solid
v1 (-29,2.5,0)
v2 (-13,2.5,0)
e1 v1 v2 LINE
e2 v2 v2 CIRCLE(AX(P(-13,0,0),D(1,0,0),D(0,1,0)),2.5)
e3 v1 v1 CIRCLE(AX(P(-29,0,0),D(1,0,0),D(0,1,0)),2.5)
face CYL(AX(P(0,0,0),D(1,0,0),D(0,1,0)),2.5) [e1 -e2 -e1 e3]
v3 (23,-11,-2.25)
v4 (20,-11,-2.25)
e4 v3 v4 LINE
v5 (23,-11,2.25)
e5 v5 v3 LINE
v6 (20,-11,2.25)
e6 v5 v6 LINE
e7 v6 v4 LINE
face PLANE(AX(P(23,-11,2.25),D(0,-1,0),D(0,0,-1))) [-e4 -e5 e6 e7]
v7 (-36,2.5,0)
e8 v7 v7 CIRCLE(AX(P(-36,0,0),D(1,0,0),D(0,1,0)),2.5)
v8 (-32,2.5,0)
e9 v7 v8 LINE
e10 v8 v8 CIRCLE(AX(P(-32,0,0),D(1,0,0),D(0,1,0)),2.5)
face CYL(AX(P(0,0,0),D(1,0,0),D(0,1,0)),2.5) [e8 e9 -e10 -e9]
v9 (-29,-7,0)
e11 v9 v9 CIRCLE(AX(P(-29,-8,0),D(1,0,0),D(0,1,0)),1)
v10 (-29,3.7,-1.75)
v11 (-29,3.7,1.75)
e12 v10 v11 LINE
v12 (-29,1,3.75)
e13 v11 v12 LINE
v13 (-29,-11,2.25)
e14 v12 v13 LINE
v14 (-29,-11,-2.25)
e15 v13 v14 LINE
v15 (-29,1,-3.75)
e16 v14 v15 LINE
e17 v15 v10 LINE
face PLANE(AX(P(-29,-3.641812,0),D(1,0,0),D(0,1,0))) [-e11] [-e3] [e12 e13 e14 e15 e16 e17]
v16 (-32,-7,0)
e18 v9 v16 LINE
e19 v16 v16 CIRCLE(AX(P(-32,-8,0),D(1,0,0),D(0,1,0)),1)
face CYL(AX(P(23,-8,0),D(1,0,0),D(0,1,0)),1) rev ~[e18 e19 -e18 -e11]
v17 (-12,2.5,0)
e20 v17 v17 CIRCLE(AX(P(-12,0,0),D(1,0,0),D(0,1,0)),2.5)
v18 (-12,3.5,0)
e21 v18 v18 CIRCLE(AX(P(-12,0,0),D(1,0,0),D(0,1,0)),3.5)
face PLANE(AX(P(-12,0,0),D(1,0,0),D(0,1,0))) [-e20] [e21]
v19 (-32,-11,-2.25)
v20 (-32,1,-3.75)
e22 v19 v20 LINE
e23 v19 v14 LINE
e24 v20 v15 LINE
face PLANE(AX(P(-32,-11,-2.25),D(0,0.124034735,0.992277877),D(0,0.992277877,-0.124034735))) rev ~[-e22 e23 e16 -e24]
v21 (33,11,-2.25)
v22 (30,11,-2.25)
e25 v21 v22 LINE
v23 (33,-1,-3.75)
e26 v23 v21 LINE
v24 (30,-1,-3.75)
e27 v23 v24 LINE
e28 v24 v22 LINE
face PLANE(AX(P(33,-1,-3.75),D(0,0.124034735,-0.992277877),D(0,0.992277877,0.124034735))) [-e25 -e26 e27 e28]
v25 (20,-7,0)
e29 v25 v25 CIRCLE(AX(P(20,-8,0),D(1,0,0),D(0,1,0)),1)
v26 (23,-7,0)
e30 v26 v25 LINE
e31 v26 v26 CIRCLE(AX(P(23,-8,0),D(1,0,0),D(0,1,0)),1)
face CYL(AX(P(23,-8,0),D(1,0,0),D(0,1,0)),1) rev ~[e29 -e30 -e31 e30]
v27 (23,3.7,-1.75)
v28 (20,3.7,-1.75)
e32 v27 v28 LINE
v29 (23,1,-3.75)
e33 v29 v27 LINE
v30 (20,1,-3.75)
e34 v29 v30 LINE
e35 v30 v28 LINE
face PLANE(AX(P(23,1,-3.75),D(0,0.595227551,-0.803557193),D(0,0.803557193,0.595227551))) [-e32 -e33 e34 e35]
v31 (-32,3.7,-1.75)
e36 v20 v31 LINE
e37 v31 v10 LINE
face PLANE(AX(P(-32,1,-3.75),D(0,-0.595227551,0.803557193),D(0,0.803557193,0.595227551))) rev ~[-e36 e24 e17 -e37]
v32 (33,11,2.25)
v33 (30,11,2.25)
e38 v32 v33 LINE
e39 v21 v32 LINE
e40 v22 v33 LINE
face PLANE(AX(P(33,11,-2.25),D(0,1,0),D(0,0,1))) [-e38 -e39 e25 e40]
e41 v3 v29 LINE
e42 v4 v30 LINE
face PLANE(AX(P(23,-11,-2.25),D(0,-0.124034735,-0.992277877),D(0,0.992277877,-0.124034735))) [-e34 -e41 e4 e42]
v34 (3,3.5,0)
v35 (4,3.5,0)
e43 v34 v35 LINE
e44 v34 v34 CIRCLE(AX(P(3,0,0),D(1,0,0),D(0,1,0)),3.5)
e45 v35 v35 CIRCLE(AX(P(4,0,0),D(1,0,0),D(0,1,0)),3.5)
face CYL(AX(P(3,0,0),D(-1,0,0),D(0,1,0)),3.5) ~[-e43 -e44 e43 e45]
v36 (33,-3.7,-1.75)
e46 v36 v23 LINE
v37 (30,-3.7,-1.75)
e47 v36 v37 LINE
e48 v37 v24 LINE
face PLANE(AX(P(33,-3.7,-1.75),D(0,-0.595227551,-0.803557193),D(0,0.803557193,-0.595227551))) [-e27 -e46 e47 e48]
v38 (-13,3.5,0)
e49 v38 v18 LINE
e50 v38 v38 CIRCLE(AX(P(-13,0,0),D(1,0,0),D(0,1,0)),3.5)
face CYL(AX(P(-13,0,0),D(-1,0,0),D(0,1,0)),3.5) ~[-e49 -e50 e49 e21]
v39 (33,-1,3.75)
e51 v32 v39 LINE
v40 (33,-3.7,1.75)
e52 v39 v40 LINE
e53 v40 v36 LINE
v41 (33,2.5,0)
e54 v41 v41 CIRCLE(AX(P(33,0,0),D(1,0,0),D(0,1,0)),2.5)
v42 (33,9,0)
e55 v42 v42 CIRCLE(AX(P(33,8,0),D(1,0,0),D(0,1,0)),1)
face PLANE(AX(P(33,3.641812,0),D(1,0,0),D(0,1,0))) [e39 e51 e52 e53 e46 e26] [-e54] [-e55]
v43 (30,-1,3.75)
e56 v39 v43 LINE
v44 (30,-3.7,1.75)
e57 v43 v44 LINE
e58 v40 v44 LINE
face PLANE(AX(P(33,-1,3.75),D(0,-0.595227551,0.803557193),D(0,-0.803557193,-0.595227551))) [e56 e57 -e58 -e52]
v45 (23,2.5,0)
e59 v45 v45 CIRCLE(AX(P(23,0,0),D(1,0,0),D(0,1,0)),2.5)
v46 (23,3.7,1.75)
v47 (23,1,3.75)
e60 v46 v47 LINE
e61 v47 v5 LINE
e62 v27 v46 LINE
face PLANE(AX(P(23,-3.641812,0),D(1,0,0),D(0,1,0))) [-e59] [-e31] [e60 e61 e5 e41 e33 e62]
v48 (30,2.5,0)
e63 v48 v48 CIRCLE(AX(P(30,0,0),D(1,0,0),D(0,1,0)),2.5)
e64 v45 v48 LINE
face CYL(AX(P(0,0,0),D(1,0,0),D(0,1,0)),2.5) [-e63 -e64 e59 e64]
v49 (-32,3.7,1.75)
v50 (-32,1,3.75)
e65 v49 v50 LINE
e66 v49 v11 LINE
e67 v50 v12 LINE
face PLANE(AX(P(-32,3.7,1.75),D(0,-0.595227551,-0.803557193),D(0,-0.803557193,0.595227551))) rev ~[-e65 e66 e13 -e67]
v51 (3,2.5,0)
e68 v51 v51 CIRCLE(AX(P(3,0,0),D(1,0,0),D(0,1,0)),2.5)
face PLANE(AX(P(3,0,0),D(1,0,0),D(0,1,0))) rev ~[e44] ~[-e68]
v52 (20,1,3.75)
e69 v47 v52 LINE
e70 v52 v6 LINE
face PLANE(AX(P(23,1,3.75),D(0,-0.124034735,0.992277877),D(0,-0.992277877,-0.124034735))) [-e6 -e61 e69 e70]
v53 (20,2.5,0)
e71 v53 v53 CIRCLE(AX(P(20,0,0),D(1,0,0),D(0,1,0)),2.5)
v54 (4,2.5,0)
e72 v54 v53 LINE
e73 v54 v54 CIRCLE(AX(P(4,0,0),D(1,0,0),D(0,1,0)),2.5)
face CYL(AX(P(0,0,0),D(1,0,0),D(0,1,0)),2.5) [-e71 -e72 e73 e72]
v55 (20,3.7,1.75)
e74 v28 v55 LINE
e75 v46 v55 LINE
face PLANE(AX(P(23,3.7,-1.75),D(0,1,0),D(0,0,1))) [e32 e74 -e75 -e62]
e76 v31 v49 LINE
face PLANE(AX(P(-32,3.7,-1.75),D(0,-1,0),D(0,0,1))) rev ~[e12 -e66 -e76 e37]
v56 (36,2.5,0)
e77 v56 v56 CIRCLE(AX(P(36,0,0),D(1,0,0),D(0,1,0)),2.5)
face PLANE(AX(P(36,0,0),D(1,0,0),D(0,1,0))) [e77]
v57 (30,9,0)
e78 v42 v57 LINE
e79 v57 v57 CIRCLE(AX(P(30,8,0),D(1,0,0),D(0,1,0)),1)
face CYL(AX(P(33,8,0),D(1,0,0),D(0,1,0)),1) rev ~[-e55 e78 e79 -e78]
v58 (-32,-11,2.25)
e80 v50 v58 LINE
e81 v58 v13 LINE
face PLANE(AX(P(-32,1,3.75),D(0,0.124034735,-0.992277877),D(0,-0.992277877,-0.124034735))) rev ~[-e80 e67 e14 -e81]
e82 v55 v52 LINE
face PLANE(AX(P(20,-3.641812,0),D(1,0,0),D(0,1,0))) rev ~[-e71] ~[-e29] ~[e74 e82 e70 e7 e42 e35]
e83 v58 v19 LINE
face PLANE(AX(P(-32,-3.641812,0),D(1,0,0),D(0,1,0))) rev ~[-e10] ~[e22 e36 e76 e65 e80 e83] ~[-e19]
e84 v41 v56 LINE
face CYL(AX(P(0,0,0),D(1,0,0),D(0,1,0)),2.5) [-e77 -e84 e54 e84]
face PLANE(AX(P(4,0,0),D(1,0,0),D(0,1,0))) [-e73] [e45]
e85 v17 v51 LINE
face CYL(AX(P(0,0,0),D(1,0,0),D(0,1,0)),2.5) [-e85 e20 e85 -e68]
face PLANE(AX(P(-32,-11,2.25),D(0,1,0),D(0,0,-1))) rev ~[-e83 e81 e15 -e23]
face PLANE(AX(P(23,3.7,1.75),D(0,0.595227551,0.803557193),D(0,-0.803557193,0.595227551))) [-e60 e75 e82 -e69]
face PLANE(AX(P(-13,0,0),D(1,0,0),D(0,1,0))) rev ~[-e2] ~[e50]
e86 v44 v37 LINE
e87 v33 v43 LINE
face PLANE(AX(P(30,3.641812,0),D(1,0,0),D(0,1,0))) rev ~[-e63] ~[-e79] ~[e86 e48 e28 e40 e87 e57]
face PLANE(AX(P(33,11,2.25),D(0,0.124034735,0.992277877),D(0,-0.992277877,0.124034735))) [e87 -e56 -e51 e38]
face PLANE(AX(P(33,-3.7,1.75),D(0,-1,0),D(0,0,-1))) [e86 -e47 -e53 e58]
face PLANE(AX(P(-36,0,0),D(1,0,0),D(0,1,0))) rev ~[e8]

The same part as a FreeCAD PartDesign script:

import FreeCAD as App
import Part
import Sketcher
Q = App.Units.Quantity

doc = App.newDocument("Part")
body = doc.addObject("PartDesign::Body", "Body")

# Sketch on YZ plane
sketch1 = doc.addObject("Sketcher::SketchObject", "Sketch")
body.addObject(sketch1)
sketch1.AttachmentSupport = (doc.YZ_Plane, [""])
sketch1.MapMode = "FlatFace"
sketch1.addGeometry(Part.Circle(App.Vector(0, 0, 0), App.Vector(0, 0, 1), 2.5), False)
sketch1.addConstraint(Sketcher.Constraint("Coincident", 0, 3, -1, 1))
sketch1.addConstraint(Sketcher.Constraint("Diameter", 0, Q("5 mm")))
pad1 = doc.addObject("PartDesign::Pad", "Pad")
body.addObject(pad1)
pad1.Profile = sketch1
pad1.Length = 72
pad1.Midplane = True

# Sketch on YZ plane
sketch2 = doc.addObject("Sketcher::SketchObject", "Sketch001")
body.addObject(sketch2)
sketch2.AttachmentSupport = (doc.YZ_Plane, [""])
sketch2.MapMode = "FlatFace"
sketch2.AttachmentOffset = App.Placement(App.Vector(0, 0, -32), App.Rotation())
sketch2.addGeometry(Part.LineSegment(App.Vector(3.7, -1.8, 0), App.Vector(3.7, 1.8, 0)), False)
sketch2.addGeometry(Part.LineSegment(App.Vector(3.7, 1.8, 0), App.Vector(1, 3.8, 0)), False)
sketch2.addGeometry(Part.LineSegment(App.Vector(1, 3.8, 0), App.Vector(-11, 2.2, 0)), False)
sketch2.addGeometry(Part.LineSegment(App.Vector(-11, 2.2, 0), App.Vector(-11, -2.2, 0)), False)
sketch2.addGeometry(Part.LineSegment(App.Vector(-11, -2.2, 0), App.Vector(1, -3.8, 0)), False)
sketch2.addGeometry(Part.LineSegment(App.Vector(1, -3.8, 0), App.Vector(3.7, -1.8, 0)), False)
sketch2.addConstraint(Sketcher.Constraint("Coincident", 0, 2, 1, 1))
sketch2.addConstraint(Sketcher.Constraint("Coincident", 1, 2, 2, 1))
sketch2.addConstraint(Sketcher.Constraint("Coincident", 2, 2, 3, 1))
sketch2.addConstraint(Sketcher.Constraint("Coincident", 3, 2, 4, 1))
sketch2.addConstraint(Sketcher.Constraint("Coincident", 4, 2, 5, 1))
sketch2.addConstraint(Sketcher.Constraint("Coincident", 5, 2, 0, 1))
sketch2.addConstraint(Sketcher.Constraint("Vertical", 0))
sketch2.addConstraint(Sketcher.Constraint("Vertical", 3))
sketch2.addConstraint(Sketcher.Constraint("Symmetric", 1, 2, 4, 2, -1))
sketch2.addConstraint(Sketcher.Constraint("Equal", 2, 4))
sketch2.addConstraint(Sketcher.Constraint("Equal", 1, 5))
sketch2.addConstraint(Sketcher.Constraint("DistanceY", 0, 1, 0, 2, Q("3.5 mm")))
sketch2.addConstraint(Sketcher.Constraint("DistanceY", 3, 2, 3, 1, Q("4.5 mm")))
sketch2.addConstraint(Sketcher.Constraint("DistanceX", -1, 1, 1, 2, Q("1 mm")))
sketch2.addConstraint(Sketcher.Constraint("DistanceX", 2, 2, -1, 1, Q("11 mm")))
sketch2.addConstraint(Sketcher.Constraint("DistanceY", 0, 2, 1, 2, Q("2 mm")))
sketch2.addConstraint(Sketcher.Constraint("DistanceX", -1, 1, 0, 2, Q("3.7 mm")))
pad2 = doc.addObject("PartDesign::Pad", "Pad001")
body.addObject(pad2)
pad2.Profile = sketch2
pad2.Length = 3

# Sketch on YZ plane
sketch3 = doc.addObject("Sketcher::SketchObject", "Sketch002")
body.addObject(sketch3)
sketch3.AttachmentSupport = (doc.YZ_Plane, [""])
sketch3.MapMode = "FlatFace"
sketch3.AttachmentOffset = App.Placement(App.Vector(0, 0, -13), App.Rotation())
sketch3.addGeometry(Part.Circle(App.Vector(0, 0, 0), App.Vector(0, 0, 1), 3.5), False)
sketch3.addConstraint(Sketcher.Constraint("Coincident", 0, 3, -1, 1))
sketch3.addConstraint(Sketcher.Constraint("Diameter", 0, Q("7 mm")))
pad3 = doc.addObject("PartDesign::Pad", "Pad002")
body.addObject(pad3)
pad3.Profile = sketch3
pad3.Length = 1

# Sketch on YZ plane
sketch4 = doc.addObject("Sketcher::SketchObject", "Sketch003")
body.addObject(sketch4)
sketch4.AttachmentSupport = (doc.YZ_Plane, [""])
sketch4.MapMode = "FlatFace"
sketch4.AttachmentOffset = App.Placement(App.Vector(0, 0, 3), App.Rotation())
sketch4.addGeometry(Part.Circle(App.Vector(0, 0, 0), App.Vector(0, 0, 1), 3.5), False)
sketch4.addConstraint(Sketcher.Constraint("Coincident", 0, 3, -1, 1))
sketch4.addConstraint(Sketcher.Constraint("Diameter", 0, Q("7 mm")))
pad4 = doc.addObject("PartDesign::Pad", "Pad003")
body.addObject(pad4)
pad4.Profile = sketch4
pad4.Length = 1

# Sketch on YZ plane
sketch5 = doc.addObject("Sketcher::SketchObject", "Sketch004")
body.addObject(sketch5)
sketch5.AttachmentSupport = (doc.YZ_Plane, [""])
sketch5.MapMode = "FlatFace"
sketch5.AttachmentOffset = App.Placement(App.Vector(0, 0, 33), App.Rotation())
sketch5.addGeometry(Part.LineSegment(App.Vector(-1, 3.8, 0), App.Vector(-3.7, 1.8, 0)), False)
sketch5.addGeometry(Part.LineSegment(App.Vector(-3.7, 1.8, 0), App.Vector(-3.7, -1.8, 0)), False)
sketch5.addGeometry(Part.LineSegment(App.Vector(-3.7, -1.8, 0), App.Vector(-1, -3.8, 0)), False)
sketch5.addGeometry(Part.LineSegment(App.Vector(-1, -3.8, 0), App.Vector(11, -2.2, 0)), False)
sketch5.addGeometry(Part.LineSegment(App.Vector(11, -2.2, 0), App.Vector(11, 2.2, 0)), False)
sketch5.addGeometry(Part.LineSegment(App.Vector(11, 2.2, 0), App.Vector(-1, 3.8, 0)), False)
sketch5.addConstraint(Sketcher.Constraint("Coincident", 0, 2, 1, 1))
sketch5.addConstraint(Sketcher.Constraint("Coincident", 1, 2, 2, 1))
sketch5.addConstraint(Sketcher.Constraint("Coincident", 2, 2, 3, 1))
sketch5.addConstraint(Sketcher.Constraint("Coincident", 3, 2, 4, 1))
sketch5.addConstraint(Sketcher.Constraint("Coincident", 4, 2, 5, 1))
sketch5.addConstraint(Sketcher.Constraint("Coincident", 5, 2, 0, 1))
sketch5.addConstraint(Sketcher.Constraint("Vertical", 1))
sketch5.addConstraint(Sketcher.Constraint("Vertical", 4))
sketch5.addConstraint(Sketcher.Constraint("Symmetric", 2, 2, 5, 2, -1))
sketch5.addConstraint(Sketcher.Constraint("Equal", 0, 2))
sketch5.addConstraint(Sketcher.Constraint("Equal", 3, 5))
sketch5.addConstraint(Sketcher.Constraint("DistanceY", 1, 2, 1, 1, Q("3.5 mm")))
sketch5.addConstraint(Sketcher.Constraint("DistanceY", 4, 1, 4, 2, Q("4.5 mm")))
sketch5.addConstraint(Sketcher.Constraint("DistanceX", 2, 2, -1, 1, Q("1 mm")))
sketch5.addConstraint(Sketcher.Constraint("DistanceX", -1, 1, 3, 2, Q("11 mm")))
sketch5.addConstraint(Sketcher.Constraint("DistanceY", 2, 2, 1, 2, Q("2 mm")))
sketch5.addConstraint(Sketcher.Constraint("DistanceX", 0, 2, -1, 1, Q("3.7 mm")))
pad5 = doc.addObject("PartDesign::Pad", "Pad004")
body.addObject(pad5)
pad5.Profile = sketch5
pad5.Length = 3
pad5.Reversed = True

# Sketch on YZ plane
sketch6 = doc.addObject("Sketcher::SketchObject", "Sketch005")
body.addObject(sketch6)
sketch6.AttachmentSupport = (doc.YZ_Plane, [""])
sketch6.MapMode = "FlatFace"
sketch6.AttachmentOffset = App.Placement(App.Vector(0, 0, 23), App.Rotation())
sketch6.addGeometry(Part.LineSegment(App.Vector(3.7, -1.8, 0), App.Vector(3.7, 1.8, 0)), False)
sketch6.addGeometry(Part.LineSegment(App.Vector(3.7, 1.8, 0), App.Vector(1, 3.8, 0)), False)
sketch6.addGeometry(Part.LineSegment(App.Vector(1, 3.8, 0), App.Vector(-11, 2.2, 0)), False)
sketch6.addGeometry(Part.LineSegment(App.Vector(-11, 2.2, 0), App.Vector(-11, -2.2, 0)), False)
sketch6.addGeometry(Part.LineSegment(App.Vector(-11, -2.2, 0), App.Vector(1, -3.8, 0)), False)
sketch6.addGeometry(Part.LineSegment(App.Vector(1, -3.8, 0), App.Vector(3.7, -1.8, 0)), False)
sketch6.addConstraint(Sketcher.Constraint("Coincident", 0, 2, 1, 1))
sketch6.addConstraint(Sketcher.Constraint("Coincident", 1, 2, 2, 1))
sketch6.addConstraint(Sketcher.Constraint("Coincident", 2, 2, 3, 1))
sketch6.addConstraint(Sketcher.Constraint("Coincident", 3, 2, 4, 1))
sketch6.addConstraint(Sketcher.Constraint("Coincident", 4, 2, 5, 1))
sketch6.addConstraint(Sketcher.Constraint("Coincident", 5, 2, 0, 1))
sketch6.addConstraint(Sketcher.Constraint("Vertical", 0))
sketch6.addConstraint(Sketcher.Constraint("Vertical", 3))
sketch6.addConstraint(Sketcher.Constraint("Symmetric", 1, 2, 4, 2, -1))
sketch6.addConstraint(Sketcher.Constraint("Equal", 2, 4))
sketch6.addConstraint(Sketcher.Constraint("Equal", 1, 5))
sketch6.addConstraint(Sketcher.Constraint("DistanceY", 0, 1, 0, 2, Q("3.5 mm")))
sketch6.addConstraint(Sketcher.Constraint("DistanceY", 3, 2, 3, 1, Q("4.5 mm")))
sketch6.addConstraint(Sketcher.Constraint("DistanceX", -1, 1, 1, 2, Q("1 mm")))
sketch6.addConstraint(Sketcher.Constraint("DistanceX", 2, 2, -1, 1, Q("11 mm")))
sketch6.addConstraint(Sketcher.Constraint("DistanceY", 0, 2, 1, 2, Q("2 mm")))
sketch6.addConstraint(Sketcher.Constraint("DistanceX", -1, 1, 0, 2, Q("3.7 mm")))
pad6 = doc.addObject("PartDesign::Pad", "Pad005")
body.addObject(pad6)
pad6.Profile = sketch6
pad6.Length = 3
pad6.Reversed = True

# Sketch on YZ plane
sketch7 = doc.addObject("Sketcher::SketchObject", "Sketch006")
body.addObject(sketch7)
sketch7.AttachmentSupport = (doc.YZ_Plane, [""])
sketch7.MapMode = "FlatFace"
sketch7.AttachmentOffset = App.Placement(App.Vector(0, 0, 33), App.Rotation())
sketch7.addGeometry(Part.Circle(App.Vector(8, 0, 0), App.Vector(0, 0, 1), 1), False)
sketch7.addConstraint(Sketcher.Constraint("PointOnObject", 0, 3, -1))
sketch7.addConstraint(Sketcher.Constraint("Diameter", 0, Q("2 mm")))
sketch7.addConstraint(Sketcher.Constraint("DistanceX", -1, 1, 0, 3, Q("8 mm")))
pocket1 = doc.addObject("PartDesign::Pocket", "Pocket")
body.addObject(pocket1)
pocket1.Profile = sketch7
pocket1.Type = "ThroughAll"

# Sketch on YZ plane
sketch8 = doc.addObject("Sketcher::SketchObject", "Sketch007")
body.addObject(sketch8)
sketch8.AttachmentSupport = (doc.YZ_Plane, [""])
sketch8.MapMode = "FlatFace"
sketch8.AttachmentOffset = App.Placement(App.Vector(0, 0, 23), App.Rotation())
sketch8.addGeometry(Part.Circle(App.Vector(-8, 0, 0), App.Vector(0, 0, 1), 1), False)
sketch8.addConstraint(Sketcher.Constraint("PointOnObject", 0, 3, -1))
sketch8.addConstraint(Sketcher.Constraint("Diameter", 0, Q("2 mm")))
sketch8.addConstraint(Sketcher.Constraint("DistanceX", 0, 3, -1, 1, Q("8 mm")))
pocket2 = doc.addObject("PartDesign::Pocket", "Pocket001")
body.addObject(pocket2)
pocket2.Profile = sketch8
pocket2.Type = "ThroughAll"

doc.recompute()
